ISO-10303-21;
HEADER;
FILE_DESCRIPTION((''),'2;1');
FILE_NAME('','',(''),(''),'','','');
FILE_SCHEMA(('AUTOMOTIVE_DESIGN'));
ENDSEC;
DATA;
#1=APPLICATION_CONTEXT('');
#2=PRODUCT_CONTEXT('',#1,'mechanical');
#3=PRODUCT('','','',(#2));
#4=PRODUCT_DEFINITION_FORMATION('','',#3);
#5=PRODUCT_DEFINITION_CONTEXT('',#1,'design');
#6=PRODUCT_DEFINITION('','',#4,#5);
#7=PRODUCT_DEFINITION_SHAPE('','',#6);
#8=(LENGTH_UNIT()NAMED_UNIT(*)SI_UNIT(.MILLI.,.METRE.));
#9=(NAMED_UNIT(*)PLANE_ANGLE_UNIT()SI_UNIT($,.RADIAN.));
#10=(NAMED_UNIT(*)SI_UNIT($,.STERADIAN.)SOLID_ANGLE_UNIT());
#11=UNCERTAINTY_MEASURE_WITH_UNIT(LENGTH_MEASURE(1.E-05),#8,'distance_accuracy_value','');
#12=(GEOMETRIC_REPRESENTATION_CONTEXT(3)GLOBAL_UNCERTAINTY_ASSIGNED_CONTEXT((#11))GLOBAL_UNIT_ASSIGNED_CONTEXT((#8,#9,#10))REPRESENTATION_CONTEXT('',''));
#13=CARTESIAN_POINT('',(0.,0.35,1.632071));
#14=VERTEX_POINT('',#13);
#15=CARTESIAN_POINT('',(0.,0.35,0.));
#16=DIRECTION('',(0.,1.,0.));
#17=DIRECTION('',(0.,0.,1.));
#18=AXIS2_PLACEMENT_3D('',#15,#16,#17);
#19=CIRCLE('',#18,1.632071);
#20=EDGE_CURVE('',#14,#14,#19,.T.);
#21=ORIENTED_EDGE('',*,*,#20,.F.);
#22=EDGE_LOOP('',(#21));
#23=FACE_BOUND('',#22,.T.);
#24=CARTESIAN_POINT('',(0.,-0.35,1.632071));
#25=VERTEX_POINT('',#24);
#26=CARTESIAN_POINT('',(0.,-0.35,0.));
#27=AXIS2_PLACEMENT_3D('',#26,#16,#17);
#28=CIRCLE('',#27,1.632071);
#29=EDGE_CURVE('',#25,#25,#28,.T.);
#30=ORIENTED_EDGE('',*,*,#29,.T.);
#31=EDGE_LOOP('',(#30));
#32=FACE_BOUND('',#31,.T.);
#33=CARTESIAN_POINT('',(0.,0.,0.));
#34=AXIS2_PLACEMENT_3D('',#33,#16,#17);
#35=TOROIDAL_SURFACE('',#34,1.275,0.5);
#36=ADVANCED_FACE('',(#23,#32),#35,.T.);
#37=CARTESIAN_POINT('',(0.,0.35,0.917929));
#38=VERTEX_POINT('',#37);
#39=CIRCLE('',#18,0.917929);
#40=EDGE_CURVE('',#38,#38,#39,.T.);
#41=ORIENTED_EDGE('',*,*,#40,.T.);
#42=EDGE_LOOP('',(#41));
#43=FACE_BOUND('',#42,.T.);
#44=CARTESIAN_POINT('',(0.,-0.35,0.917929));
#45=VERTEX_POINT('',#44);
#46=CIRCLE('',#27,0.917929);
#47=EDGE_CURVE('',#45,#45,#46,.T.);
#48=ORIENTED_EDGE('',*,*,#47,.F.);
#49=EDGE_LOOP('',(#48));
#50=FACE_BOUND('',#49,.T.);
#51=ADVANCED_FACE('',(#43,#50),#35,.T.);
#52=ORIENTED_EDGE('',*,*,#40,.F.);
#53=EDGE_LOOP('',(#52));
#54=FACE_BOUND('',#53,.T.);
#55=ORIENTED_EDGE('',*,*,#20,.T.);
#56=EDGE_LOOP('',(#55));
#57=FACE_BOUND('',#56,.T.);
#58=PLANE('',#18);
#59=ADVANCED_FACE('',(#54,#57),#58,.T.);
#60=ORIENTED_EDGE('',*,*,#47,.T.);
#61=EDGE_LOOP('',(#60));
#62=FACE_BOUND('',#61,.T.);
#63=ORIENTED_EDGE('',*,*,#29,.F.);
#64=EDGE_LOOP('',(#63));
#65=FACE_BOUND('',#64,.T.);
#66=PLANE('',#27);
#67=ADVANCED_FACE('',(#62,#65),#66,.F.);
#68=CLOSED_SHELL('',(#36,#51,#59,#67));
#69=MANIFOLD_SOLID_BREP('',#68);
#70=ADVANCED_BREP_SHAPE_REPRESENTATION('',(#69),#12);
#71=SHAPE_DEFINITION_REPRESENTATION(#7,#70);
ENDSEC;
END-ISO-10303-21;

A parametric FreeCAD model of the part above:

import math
import FreeCAD as App
import Part
import Sketcher

V = App.Vector
Q = App.Units.Quantity

doc = App.newDocument("Part")
body = doc.addObject("PartDesign::Body", "Body")

sketch1 = body.newObject("Sketcher::SketchObject", "Sketch")
sketch1.AttachmentSupport = (doc.getObject("XY_Plane"), [""])
sketch1.MapMode = "FlatFace"
sketch1.addGeometry([
    Part.LineSegment(V(1.63, 0.35, 0), V(0.92, 0.35, 0)),
    Part.ArcOfCircle(Part.Circle(V(1.27, 0, 0), V(0, 0, 1), 0.5), math.radians(136), math.radians(224)),
    Part.LineSegment(V(0.92, -0.35, 0), V(1.63, -0.35, 0)),
    Part.ArcOfCircle(Part.Circle(V(1.28, 0, 0), V(0, 0, 1), 0.5), math.radians(-44), math.radians(0)),
    Part.ArcOfCircle(Part.Circle(V(1.28, 0, 0), V(0, 0, 1), 0.5), math.radians(0), math.radians(44)),
], False)
sketch1.addConstraint([
    Sketcher.Constraint("Coincident", 0, 2, 1, 1),
    Sketcher.Constraint("Coincident", 1, 2, 2, 1),
    Sketcher.Constraint("Coincident", 2, 2, 3, 1),
    Sketcher.Constraint("Tangent", 3, 2, 4, 1),
    Sketcher.Constraint("Coincident", 4, 2, 0, 1),
    Sketcher.Constraint("Horizontal", 0),
    Sketcher.Constraint("Horizontal", 2),
    Sketcher.Constraint("Coincident", 3, 3, 1, 3),
    Sketcher.Constraint("Equal", 1, 3),
    Sketcher.Constraint("Equal", 3, 4),
    Sketcher.Constraint("Symmetric", 0, 2, 1, 2, -1),
    Sketcher.Constraint("PointOnObject", 3, 2, -1),
    Sketcher.Constraint("Radius", 1, Q("0.5 mm")),
    Sketcher.Constraint("DistanceY", 1, 2, 0, 2, Q("0.7 mm")),
    Sketcher.Constraint("DistanceX", -1, 1, 1, 3, Q("1.275 mm")),
])
revolution = body.newObject("PartDesign::Revolution", "Revolution")
revolution.Profile = sketch1
revolution.ReferenceAxis = (sketch1, ["V_Axis"])
revolution.Angle = 360

doc.recompute()
